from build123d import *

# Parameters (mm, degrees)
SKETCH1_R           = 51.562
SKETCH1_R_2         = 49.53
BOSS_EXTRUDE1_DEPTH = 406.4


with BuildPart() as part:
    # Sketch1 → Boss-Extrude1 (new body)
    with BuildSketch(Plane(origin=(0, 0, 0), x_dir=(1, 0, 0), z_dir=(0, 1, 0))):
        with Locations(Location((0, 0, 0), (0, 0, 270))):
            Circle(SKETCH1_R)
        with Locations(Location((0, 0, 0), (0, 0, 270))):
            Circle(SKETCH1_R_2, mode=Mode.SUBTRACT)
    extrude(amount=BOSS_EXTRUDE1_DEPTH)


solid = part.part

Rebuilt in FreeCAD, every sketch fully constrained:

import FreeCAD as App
import Part
import Sketcher

V = App.Vector
Q = App.Units.Quantity

doc = App.newDocument("Part")
body = doc.addObject("PartDesign::Body", "Body")

# Sketch on XZ plane
sketch1 = body.newObject("Sketcher::SketchObject", "Sketch")
sketch1.AttachmentSupport = (doc.getObject("XZ_Plane"), [""])
sketch1.MapMode = "FlatFace"
sketch1.addGeometry([
    Part.Circle(V(0, 0, 0), V(0, 0, 1), 52),
    Part.Circle(V(0, 0, 0), V(0, 0, 1), 50),
], False)
sketch1.addConstraint([
    Sketcher.Constraint("Coincident", 0, 3, -1, 1),
    Sketcher.Constraint("Coincident", 1, 3, -1, 1),
    Sketcher.Constraint("Diameter", 1, Q("3.9 in")),
    Sketcher.Constraint("Diameter", 0, Q("4.06 in")),
])
pad1 = body.newObject("PartDesign::Pad", "Pad")
pad1.Profile = sketch1
pad1.Length = Q("16 in")
pad1.Reversed = True

doc.recompute()
